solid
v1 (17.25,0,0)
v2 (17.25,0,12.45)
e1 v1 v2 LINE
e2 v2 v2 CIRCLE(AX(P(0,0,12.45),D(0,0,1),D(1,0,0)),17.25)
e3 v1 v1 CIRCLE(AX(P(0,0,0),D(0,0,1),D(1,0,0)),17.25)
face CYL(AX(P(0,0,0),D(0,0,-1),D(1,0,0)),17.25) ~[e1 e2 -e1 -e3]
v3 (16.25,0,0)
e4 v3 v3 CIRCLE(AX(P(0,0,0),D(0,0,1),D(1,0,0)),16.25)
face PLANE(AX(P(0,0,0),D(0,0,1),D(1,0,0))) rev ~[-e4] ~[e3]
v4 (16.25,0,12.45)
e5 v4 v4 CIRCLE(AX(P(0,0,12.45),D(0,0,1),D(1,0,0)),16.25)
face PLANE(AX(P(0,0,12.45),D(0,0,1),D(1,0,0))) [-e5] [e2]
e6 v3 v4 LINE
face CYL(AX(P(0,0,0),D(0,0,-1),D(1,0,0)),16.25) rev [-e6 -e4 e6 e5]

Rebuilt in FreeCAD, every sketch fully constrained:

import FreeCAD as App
import Part
import Sketcher
from FreeCAD import Vector
Q = App.Units.Quantity

doc = App.newDocument("Part")
body = doc.addObject("PartDesign::Body", "Body")

sketch1 = body.newObject("Sketcher::SketchObject", "Sketch")
sketch1.AttachmentSupport = (doc.getObject("XY_Plane"), [""])
sketch1.MapMode = "FlatFace"
sketch1.addGeometry([
    Part.Circle(Vector(0, 0, 0), Vector(0, 0, 1), 17),
    Part.Circle(Vector(0, 0, 0), Vector(0, 0, 1), 16),
], False)
sketch1.addConstraint([
    Sketcher.Constraint("Coincident", 0, 3, -1, 1),
    Sketcher.Constraint("Coincident", 1, 3, -1, 1),
    Sketcher.Constraint("Diameter", 0, Q("34.5 mm")),
    Sketcher.Constraint("Diameter", 1, Q("32.5 mm")),
])
pad1 = body.newObject("PartDesign::Pad", "Pad")
pad1.Profile = sketch1
pad1.Length = 12.45

doc.recompute()
